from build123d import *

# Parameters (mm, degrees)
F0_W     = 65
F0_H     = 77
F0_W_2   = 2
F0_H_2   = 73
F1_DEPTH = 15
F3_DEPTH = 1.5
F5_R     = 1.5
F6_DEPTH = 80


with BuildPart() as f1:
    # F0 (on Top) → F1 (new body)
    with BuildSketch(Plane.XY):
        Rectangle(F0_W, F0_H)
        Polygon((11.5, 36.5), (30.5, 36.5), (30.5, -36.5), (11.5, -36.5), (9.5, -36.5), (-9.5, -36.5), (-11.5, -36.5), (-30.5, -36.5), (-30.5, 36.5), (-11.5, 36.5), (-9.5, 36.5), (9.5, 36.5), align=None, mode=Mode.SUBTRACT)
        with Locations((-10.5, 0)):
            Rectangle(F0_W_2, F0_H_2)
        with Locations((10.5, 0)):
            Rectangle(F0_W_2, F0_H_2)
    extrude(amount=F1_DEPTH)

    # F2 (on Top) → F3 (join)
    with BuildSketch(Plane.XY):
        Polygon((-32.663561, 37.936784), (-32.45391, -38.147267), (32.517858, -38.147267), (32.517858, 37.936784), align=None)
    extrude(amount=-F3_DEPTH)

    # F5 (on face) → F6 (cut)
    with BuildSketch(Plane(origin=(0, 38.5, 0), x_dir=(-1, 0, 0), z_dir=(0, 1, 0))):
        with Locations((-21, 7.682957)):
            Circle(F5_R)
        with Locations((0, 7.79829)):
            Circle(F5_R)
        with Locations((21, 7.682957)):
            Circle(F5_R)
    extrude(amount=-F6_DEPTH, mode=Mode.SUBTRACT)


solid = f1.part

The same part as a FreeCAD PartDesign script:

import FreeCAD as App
import Part
import Sketcher

V = App.Vector
Q = App.Units.Quantity


def add_polygon(sketch, points):
    """Adds a closed chain of lines whose ends are joined by coincident constraints."""
    first, n = sketch.GeometryCount, len(points)
    for a, b in zip(points, points[1:] + points[:1]):
        sketch.addGeometry(Part.LineSegment(App.Vector(*a, 0), App.Vector(*b, 0)), False)
    for i in range(n):
        sketch.addConstraint(Sketcher.Constraint("Coincident", first + i, 2, first + (i + 1) % n, 1))

doc = App.newDocument("Part")
body = doc.addObject("PartDesign::Body", "Body")

# Sketch on XY plane
sketch1 = body.newObject("Sketcher::SketchObject", "Sketch")
sketch1.AttachmentSupport = (doc.getObject("XY_Plane"), [""])
sketch1.MapMode = "FlatFace"
add_polygon(sketch1, [(-32, 38), (-32, -38), (32, -38), (32, 38)])  # lines 0-3
add_polygon(sketch1, [(-30, 36), (-12, 36), (-12, -36), (-30, -36)])  # lines 4-7
add_polygon(sketch1, [(-10, 36), (10, 36), (10, -36), (-10, -36)])  # lines 8-11
add_polygon(sketch1, [(12, 36), (30, 36), (30, -36), (12, -36)])  # lines 12-15
sketch1.addConstraint([
    Sketcher.Constraint("Vertical", 0),
    Sketcher.Constraint("Horizontal", 1),
    Sketcher.Constraint("Vertical", 2),
    Sketcher.Constraint("Horizontal", 3),
    Sketcher.Constraint("Horizontal", 4),
    Sketcher.Constraint("Vertical", 5),
    Sketcher.Constraint("Horizontal", 6),
    Sketcher.Constraint("Vertical", 7),
    Sketcher.Constraint("Horizontal", 8),
    Sketcher.Constraint("Vertical", 9),
    Sketcher.Constraint("Horizontal", 10),
    Sketcher.Constraint("Vertical", 11),
    Sketcher.Constraint("Horizontal", 12),
    Sketcher.Constraint("Vertical", 13),
    Sketcher.Constraint("Horizontal", 14),
    Sketcher.Constraint("Vertical", 15),
    Sketcher.Constraint("Symmetric", 0, 2, 2, 2, -1, 1),
    Sketcher.Constraint("Symmetric", 8, 2, 10, 2, -1, 1),
    Sketcher.Constraint("Symmetric", 6, 2, 12, 2, -1, 1),
    Sketcher.Constraint("Symmetric", 4, 2, 14, 2, -1, 1),
    Sketcher.Constraint("Horizontal", 7, 2, 8, 2),
    Sketcher.Constraint("Horizontal", 6, 2, 9, 2),
    Sketcher.Constraint("Equal", 6, 8),
    Sketcher.Constraint("DistanceX", 1, 1, 1, 2, Q("65 mm")),
    Sketcher.Constraint("DistanceX", 4, 1, 4, 2, Q("19 mm")),
    Sketcher.Constraint("DistanceY", 0, 2, 0, 1, Q("77 mm")),
    Sketcher.Constraint("DistanceY", 5, 2, 5, 1, Q("73 mm")),
    Sketcher.Constraint("DistanceX", 3, 2, 4, 2, Q("21 mm")),
])
pad1 = body.newObject("PartDesign::Pad", "Pad")
pad1.Profile = sketch1
pad1.Length = 15

# Sketch on XY plane
sketch2 = body.newObject("Sketcher::SketchObject", "Sketch001")
sketch2.AttachmentSupport = (doc.getObject("XY_Plane"), [""])
sketch2.MapMode = "FlatFace"
add_polygon(sketch2, [(-33, 38), (-32, -38), (33, -38), (33, 38)])  # lines 0-3
sketch2.addConstraint([
    Sketcher.Constraint("Horizontal", 1),
    Sketcher.Constraint("Vertical", 2),
    Sketcher.Constraint("Horizontal", 3),
    Sketcher.Constraint("DistanceX", 3, 2, 3, 1, Q("65.181419 mm")),
    Sketcher.Constraint("DistanceY", 2, 1, 2, 2, Q("76.084051 mm")),
    Sketcher.Constraint("DistanceX", 1, 1, 1, 2, Q("64.971768 mm")),
    Sketcher.Constraint("DistanceX", 0, 2, -1, 1, Q("32.45391 mm")),
    Sketcher.Constraint("DistanceY", 0, 2, -1, 1, Q("38.147267 mm")),
])
pad2 = body.newObject("PartDesign::Pad", "Pad001")
pad2.Profile = sketch2
pad2.Length = 1.5
pad2.Reversed = True

# Sketch on XZ plane
sketch3 = body.newObject("Sketcher::SketchObject", "Sketch002")
sketch3.AttachmentSupport = (doc.getObject("XZ_Plane"), [""])
sketch3.MapMode = "FlatFace"
sketch3.AttachmentOffset = App.Placement(V(0, 0, -38.5), App.Rotation())
sketch3.addGeometry([
    Part.Circle(V(21, 7.7, 0), V(0, 0, 1), 1.5),
    Part.Circle(V(0, 7.8, 0), V(0, 0, 1), 1.5),
    Part.Circle(V(-21, 7.7, 0), V(0, 0, 1), 1.5),
], False)
sketch3.addConstraint([
    Sketcher.Constraint("Equal", 0, 1),
    Sketcher.Constraint("Equal", 1, 2),
    Sketcher.Constraint("Symmetric", 0, 3, 2, 3, -2),
    Sketcher.Constraint("PointOnObject", 1, 3, -2),
    Sketcher.Constraint("Diameter", 0, Q("3 mm")),
    Sketcher.Constraint("DistanceX", -1, 1, 0, 3, Q("21 mm")),
    Sketcher.Constraint("DistanceY", -1, 1, 1, 3, Q("7.79829 mm")),
    Sketcher.Constraint("DistanceY", -1, 1, 0, 3, Q("7.682957 mm")),
])
pocket1 = body.newObject("PartDesign::Pocket", "Pocket")
pocket1.Profile = sketch3
pocket1.Length = 80
pocket1.Reversed = True

doc.recompute()
